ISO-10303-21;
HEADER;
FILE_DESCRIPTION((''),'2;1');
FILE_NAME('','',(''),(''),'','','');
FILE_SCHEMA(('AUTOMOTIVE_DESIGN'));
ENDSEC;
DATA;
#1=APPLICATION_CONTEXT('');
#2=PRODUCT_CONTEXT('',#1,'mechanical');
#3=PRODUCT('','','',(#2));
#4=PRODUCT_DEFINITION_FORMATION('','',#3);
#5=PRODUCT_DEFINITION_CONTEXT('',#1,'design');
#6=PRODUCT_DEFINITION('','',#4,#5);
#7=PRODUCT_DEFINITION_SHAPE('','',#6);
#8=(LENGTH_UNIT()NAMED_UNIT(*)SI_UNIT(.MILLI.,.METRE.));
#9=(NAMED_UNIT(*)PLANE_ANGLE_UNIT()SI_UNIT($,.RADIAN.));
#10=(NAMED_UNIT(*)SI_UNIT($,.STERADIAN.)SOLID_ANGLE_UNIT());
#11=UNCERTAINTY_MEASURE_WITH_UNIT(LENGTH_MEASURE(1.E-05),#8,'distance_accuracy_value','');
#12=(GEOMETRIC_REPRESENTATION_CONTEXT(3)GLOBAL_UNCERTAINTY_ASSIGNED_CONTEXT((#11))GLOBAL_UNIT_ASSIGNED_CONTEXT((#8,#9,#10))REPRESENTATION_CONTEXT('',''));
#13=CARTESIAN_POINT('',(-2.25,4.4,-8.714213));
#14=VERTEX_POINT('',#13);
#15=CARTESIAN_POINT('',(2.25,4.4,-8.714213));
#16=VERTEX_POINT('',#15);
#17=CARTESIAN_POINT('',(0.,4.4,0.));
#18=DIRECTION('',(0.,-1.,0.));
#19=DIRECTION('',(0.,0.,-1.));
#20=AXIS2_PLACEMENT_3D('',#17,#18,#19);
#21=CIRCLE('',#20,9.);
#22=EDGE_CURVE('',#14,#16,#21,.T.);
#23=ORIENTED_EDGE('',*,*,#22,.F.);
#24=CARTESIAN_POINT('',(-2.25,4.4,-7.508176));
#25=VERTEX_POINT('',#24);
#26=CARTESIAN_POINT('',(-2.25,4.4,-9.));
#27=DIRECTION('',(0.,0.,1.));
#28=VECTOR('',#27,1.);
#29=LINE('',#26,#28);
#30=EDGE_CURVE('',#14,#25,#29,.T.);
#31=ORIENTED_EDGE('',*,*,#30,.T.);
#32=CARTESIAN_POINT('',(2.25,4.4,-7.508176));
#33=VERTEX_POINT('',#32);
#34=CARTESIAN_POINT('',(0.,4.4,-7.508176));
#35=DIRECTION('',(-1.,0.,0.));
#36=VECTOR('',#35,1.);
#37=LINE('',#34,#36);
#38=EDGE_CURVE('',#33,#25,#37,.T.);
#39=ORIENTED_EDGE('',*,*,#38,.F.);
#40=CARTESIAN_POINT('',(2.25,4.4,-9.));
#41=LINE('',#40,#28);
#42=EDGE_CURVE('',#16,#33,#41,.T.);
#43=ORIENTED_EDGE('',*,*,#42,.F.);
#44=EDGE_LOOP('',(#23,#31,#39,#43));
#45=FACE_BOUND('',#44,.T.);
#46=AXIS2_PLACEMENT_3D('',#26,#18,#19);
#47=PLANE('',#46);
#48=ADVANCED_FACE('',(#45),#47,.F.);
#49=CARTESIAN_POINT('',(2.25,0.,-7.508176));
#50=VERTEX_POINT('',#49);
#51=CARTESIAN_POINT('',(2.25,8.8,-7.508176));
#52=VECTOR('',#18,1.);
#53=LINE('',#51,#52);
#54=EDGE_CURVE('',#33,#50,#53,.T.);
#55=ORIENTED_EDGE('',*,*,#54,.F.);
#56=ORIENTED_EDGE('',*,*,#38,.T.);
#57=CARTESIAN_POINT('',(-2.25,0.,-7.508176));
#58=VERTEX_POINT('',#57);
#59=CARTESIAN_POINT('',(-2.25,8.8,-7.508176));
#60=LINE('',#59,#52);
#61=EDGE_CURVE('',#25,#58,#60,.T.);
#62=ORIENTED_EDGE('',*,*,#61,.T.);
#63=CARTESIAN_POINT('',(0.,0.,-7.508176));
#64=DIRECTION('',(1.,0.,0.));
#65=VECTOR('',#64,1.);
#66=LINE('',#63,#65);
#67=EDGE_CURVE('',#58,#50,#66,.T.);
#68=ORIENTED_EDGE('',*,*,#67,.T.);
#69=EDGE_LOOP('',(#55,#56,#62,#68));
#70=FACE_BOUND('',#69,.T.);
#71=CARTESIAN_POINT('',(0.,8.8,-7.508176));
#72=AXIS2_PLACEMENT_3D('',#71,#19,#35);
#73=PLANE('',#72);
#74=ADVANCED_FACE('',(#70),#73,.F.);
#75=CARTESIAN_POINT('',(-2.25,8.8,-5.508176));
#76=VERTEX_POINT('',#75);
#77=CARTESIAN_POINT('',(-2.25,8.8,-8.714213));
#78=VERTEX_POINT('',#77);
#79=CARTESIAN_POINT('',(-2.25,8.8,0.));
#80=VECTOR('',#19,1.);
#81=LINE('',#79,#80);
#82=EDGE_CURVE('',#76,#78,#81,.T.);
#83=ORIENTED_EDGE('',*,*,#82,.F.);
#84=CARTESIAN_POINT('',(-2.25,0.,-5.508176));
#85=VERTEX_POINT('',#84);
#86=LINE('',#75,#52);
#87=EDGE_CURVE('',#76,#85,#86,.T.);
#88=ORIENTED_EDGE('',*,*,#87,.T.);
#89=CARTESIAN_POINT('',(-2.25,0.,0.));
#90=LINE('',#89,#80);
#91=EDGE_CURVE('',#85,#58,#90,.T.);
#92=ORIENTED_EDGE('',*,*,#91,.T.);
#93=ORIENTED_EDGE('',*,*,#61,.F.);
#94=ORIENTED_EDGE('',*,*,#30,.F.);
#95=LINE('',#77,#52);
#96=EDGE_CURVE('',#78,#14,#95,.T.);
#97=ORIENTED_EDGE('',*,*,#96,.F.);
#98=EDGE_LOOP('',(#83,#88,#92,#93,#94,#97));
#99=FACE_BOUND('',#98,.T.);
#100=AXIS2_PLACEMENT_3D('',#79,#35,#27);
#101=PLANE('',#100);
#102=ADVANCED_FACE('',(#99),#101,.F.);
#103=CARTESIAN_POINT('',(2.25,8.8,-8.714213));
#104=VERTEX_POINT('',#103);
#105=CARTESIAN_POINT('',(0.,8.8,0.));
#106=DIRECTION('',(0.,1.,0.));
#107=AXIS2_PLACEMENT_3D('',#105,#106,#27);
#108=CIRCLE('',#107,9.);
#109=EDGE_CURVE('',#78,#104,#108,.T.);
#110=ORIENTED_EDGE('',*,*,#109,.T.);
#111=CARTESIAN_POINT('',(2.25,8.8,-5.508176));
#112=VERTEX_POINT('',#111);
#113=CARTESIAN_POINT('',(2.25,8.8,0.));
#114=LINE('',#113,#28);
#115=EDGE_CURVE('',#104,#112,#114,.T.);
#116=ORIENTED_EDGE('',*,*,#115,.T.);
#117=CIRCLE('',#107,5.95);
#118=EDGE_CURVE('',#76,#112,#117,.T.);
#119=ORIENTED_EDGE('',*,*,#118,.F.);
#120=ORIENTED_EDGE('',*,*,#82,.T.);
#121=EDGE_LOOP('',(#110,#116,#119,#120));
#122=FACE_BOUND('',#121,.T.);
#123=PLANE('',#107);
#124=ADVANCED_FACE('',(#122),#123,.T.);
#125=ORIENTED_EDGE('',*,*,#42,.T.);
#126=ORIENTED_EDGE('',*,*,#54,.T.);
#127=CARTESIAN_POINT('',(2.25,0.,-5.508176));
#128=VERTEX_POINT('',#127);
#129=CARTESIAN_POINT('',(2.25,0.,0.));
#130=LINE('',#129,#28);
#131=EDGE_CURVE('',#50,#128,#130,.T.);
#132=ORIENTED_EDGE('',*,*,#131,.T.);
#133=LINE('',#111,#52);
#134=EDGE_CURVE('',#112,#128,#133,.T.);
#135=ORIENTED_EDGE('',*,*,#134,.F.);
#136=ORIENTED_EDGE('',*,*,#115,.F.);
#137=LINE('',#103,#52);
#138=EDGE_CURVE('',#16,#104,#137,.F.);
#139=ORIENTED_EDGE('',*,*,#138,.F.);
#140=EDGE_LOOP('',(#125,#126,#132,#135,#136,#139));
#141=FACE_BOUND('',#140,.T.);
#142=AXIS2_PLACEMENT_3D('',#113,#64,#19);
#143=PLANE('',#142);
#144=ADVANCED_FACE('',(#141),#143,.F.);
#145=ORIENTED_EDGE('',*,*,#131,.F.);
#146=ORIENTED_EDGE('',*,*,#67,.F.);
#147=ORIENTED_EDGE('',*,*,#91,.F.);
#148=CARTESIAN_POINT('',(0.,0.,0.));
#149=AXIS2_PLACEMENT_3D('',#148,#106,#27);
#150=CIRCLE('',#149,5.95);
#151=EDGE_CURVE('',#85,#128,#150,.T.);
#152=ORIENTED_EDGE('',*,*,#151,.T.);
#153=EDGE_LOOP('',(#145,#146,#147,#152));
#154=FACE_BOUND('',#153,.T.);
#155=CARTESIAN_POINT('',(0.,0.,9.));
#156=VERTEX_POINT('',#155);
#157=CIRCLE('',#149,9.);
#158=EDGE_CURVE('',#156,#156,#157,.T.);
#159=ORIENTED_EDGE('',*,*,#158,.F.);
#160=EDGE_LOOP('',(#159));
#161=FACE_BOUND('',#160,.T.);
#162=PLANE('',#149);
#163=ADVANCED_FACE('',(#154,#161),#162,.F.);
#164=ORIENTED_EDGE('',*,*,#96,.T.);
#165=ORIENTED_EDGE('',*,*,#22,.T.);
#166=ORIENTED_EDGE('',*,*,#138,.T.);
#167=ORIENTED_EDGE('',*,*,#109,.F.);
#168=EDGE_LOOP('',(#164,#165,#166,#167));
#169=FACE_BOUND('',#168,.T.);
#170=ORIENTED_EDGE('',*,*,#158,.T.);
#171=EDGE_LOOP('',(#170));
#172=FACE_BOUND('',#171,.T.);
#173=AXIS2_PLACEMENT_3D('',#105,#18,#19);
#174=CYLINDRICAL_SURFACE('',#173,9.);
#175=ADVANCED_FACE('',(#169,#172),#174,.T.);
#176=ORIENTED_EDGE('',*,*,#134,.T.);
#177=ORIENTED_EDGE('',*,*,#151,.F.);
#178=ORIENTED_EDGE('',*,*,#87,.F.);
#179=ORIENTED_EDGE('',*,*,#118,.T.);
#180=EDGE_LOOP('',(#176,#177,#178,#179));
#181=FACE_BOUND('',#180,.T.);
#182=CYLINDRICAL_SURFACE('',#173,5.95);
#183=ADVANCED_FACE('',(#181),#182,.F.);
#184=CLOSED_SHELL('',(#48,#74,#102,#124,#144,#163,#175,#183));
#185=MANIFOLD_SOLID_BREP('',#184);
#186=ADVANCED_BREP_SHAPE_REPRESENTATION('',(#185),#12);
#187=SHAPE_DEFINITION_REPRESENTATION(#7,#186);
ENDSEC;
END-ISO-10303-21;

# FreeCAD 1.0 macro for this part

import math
import FreeCAD as App
import Part
import Sketcher
Q = App.Units.Quantity


def add_polygon(sketch, points):
    """Adds a closed chain of lines whose ends are joined by coincident constraints."""
    first, n = sketch.GeometryCount, len(points)
    for a, b in zip(points, points[1:] + points[:1]):
        sketch.addGeometry(Part.LineSegment(App.Vector(*a, 0), App.Vector(*b, 0)), False)
    for i in range(n):
        sketch.addConstraint(Sketcher.Constraint("Coincident", first + i, 2, first + (i + 1) % n, 1))

doc = App.newDocument("Part")
body = doc.addObject("PartDesign::Body", "Body")

# Sketch on XZ plane
sketch1 = body.newObject("Sketcher::SketchObject", "Sketch")
sketch1.AttachmentSupport = (doc.getObject("XZ_Plane"), [""])
sketch1.MapMode = "FlatFace"
sketch1.addGeometry([
    Part.Circle(App.Vector(0, 0, 0), App.Vector(0, 0, 1), 9),  # 0
    Part.ArcOfCircle(Part.Circle(App.Vector(0, 0, 0), App.Vector(0, 0, 1), 5.95), math.radians(-67.780786), math.radians(0)),  # 1
    Part.ArcOfCircle(Part.Circle(App.Vector(0, 0, 0), App.Vector(0, 0, 1), 5.95), math.radians(0), math.radians(247.780786)),  # 2
    Part.LineSegment(App.Vector(-2.25, -5.508176, 0), App.Vector(-2.25, -7.508176, 0)),  # 3
    Part.LineSegment(App.Vector(-2.25, -7.508176, 0), App.Vector(2.25, -7.508176, 0)),  # 4
    Part.LineSegment(App.Vector(2.25, -7.508176, 0), App.Vector(2.25, -5.508176, 0)),  # 5
], False)
sketch1.addConstraint([
    Sketcher.Constraint("Tangent", 1, 2, 2, 1),
    Sketcher.Constraint("Coincident", 2, 2, 3, 1),
    Sketcher.Constraint("Coincident", 3, 2, 4, 1),
    Sketcher.Constraint("Coincident", 4, 2, 5, 1),
    Sketcher.Constraint("Coincident", 5, 2, 1, 1),
    Sketcher.Constraint("Vertical", 3),
    Sketcher.Constraint("Horizontal", 4),
    Sketcher.Constraint("Vertical", 5),
    Sketcher.Constraint("Coincident", 0, 3, -1, 1),
    Sketcher.Constraint("Coincident", 1, 3, -1, 1),
    Sketcher.Constraint("Equal", 1, 2),
    Sketcher.Constraint("PointOnObject", 1, 2, -1),
    Sketcher.Constraint("Horizontal", 2, 2, 5, 2),
    Sketcher.Constraint("Diameter", 0, Q("18 mm")),
    Sketcher.Constraint("DistanceY", 3, 2, 3, 1, Q("2 mm")),
    Sketcher.Constraint("Radius", 1, Q("5.95 mm")),
    Sketcher.Constraint("DistanceX", 4, 1, 4, 2, Q("4.5 mm")),
])
pad1 = body.newObject("PartDesign::Pad", "Pad")
pad1.Profile = sketch1
pad1.Length = 8.8
pad1.Reversed = True

# Sketch on XY plane
sketch2 = body.newObject("Sketcher::SketchObject", "Sketch001")
sketch2.AttachmentSupport = (doc.getObject("XY_Plane"), [""])
sketch2.MapMode = "FlatFace"
add_polygon(sketch2, [(-2.25, 8.8), (-2.25, 4.4), (2.25, 4.4), (2.25, 8.8)])  # lines 0-3
sketch2.addConstraint([
    Sketcher.Constraint("Vertical", 0),
    Sketcher.Constraint("Horizontal", 1),
    Sketcher.Constraint("Vertical", 2),
    Sketcher.Constraint("Horizontal", 3),
    Sketcher.Constraint("DistanceX", 1, 1, 1, 2, Q("4.5 mm")),
    Sketcher.Constraint("DistanceY", 0, 2, 0, 1, Q("4.4 mm")),
    Sketcher.Constraint("DistanceY", -1, 1, 0, 2, Q("4.4 mm")),
    Sketcher.Constraint("DistanceX", 0, 2, -1, 1, Q("2.25 mm")),
])
pocket1 = body.newObject("PartDesign::Pocket", "Pocket")
pocket1.Profile = sketch2
pocket1.Type = "ThroughAll"

doc.recompute()
